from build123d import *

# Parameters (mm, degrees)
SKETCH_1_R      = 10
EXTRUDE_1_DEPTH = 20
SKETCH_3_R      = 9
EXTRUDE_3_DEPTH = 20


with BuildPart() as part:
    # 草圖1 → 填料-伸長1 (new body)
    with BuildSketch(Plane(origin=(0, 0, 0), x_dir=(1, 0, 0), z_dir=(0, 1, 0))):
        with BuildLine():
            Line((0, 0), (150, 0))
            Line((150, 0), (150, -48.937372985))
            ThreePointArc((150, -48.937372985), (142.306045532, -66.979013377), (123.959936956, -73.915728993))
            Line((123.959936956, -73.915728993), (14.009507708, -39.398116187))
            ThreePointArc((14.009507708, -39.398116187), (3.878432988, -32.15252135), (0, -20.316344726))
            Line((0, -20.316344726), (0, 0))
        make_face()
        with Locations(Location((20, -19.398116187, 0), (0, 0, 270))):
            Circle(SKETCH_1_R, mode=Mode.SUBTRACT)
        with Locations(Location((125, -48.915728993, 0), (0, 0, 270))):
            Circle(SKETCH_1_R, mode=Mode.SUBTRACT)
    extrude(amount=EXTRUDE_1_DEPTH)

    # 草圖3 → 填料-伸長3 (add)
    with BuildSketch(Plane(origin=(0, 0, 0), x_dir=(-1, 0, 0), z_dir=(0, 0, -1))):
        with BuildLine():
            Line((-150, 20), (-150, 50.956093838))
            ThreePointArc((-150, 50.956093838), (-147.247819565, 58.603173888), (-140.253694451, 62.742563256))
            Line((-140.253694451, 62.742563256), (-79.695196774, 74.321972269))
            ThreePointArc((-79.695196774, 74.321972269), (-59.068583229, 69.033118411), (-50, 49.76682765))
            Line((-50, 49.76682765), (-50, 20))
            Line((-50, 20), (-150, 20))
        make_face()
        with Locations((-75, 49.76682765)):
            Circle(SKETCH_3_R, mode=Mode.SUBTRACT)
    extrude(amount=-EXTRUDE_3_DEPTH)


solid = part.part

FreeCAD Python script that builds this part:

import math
import FreeCAD as App
import Part
import Sketcher

V = App.Vector

doc = App.newDocument("Part")
params = doc.addObject("Spreadsheet::Sheet", "Params")
for row, (alias, value) in enumerate([
    ("sketch1_diameter", "20 mm"),
    ("sketch1_radius", "20 mm"),
    ("sketch1_radius2", "25 mm"),
    ("sketch1_width", "150 mm"),
    ("pad1_length", "20 mm"),
    ("sketch2_diameter", "18 mm"),
    ("sketch2_radius", "25 mm"),
    ("sketch2_radius2", "12 mm"),
    ("sketch2_width", "100 mm"),
    ("pad2_length", "20 mm"),
], start=1):
    params.set(f"A{row}", alias)
    params.set(f"B{row}", "=" + value)
    params.setAlias(f"B{row}", alias)

body = doc.addObject("PartDesign::Body", "Body")

# Sketch on XZ plane
sketch1 = body.newObject("Sketcher::SketchObject", "Sketch")
sketch1.AttachmentSupport = (doc.getObject("XZ_Plane"), [""])
sketch1.MapMode = "FlatFace"
sketch1.addGeometry(Part.LineSegment(V(150, 0, 0), V(0, 0, 0)), False)
sketch1.addGeometry(Part.LineSegment(V(0, 0, 0), V(0, 20, 0)), False)
sketch1.addGeometry(Part.ArcOfCircle(Part.Circle(V(20, 20, 0), V(0, 0, 1), 20), math.radians(107), math.radians(180)), False)
sketch1.addGeometry(Part.LineSegment(V(14, 39, 0), V(124, 74, 0)), False)
sketch1.addGeometry(Part.ArcOfCircle(Part.Circle(V(125, 49, 0), V(0, 0, 1), 25), math.radians(0), math.radians(92)), False)
sketch1.addGeometry(Part.LineSegment(V(150, 49, 0), V(150, 0, 0)), False)
sketch1.addGeometry(Part.Circle(V(125, 49, 0), V(0, 0, 1), 10), False)
sketch1.addGeometry(Part.Circle(V(20, 19, 0), V(0, 0, 1), 10), False)
sketch1.addConstraint(Sketcher.Constraint("Coincident", 0, 2, 1, 1))
sketch1.addConstraint(Sketcher.Constraint("Tangent", 1, 2, 2, 2))
sketch1.addConstraint(Sketcher.Constraint("Tangent", 2, 1, 3, 1))
sketch1.addConstraint(Sketcher.Constraint("Coincident", 3, 2, 4, 2))
sketch1.addConstraint(Sketcher.Constraint("Tangent", 4, 1, 5, 1))
sketch1.addConstraint(Sketcher.Constraint("Coincident", 5, 2, 0, 1))
sketch1.addConstraint(Sketcher.Constraint("Horizontal", 0))
sketch1.addConstraint(Sketcher.Constraint("Vertical", 1))
sketch1.addConstraint(Sketcher.Constraint("Vertical", 5))
sketch1.addConstraint(Sketcher.Constraint("Coincident", 0, 2, -1, 1))
sketch1.addConstraint(Sketcher.Constraint("Equal", 6, 7))
sketch1.addConstraint(Sketcher.Constraint("Vertical", 4, 3, 6, 3))
sketch1.addConstraint(Sketcher.Constraint("Vertical", 2, 3, 7, 3))
sketch1.addConstraint(Sketcher.Constraint("Diameter", 6, 20.0))
sketch1.addConstraint(Sketcher.Constraint("Radius", 2, 20.0))
sketch1.addConstraint(Sketcher.Constraint("Radius", 4, 25.0))
sketch1.addConstraint(Sketcher.Constraint("DistanceX", 0, 2, 0, 1, 150.0))
sketch1.addConstraint(Sketcher.Constraint("DistanceY", 7, 3, 2, 1, 20.0))
sketch1.addConstraint(Sketcher.Constraint("DistanceY", 6, 3, 3, 2, 25.0))
sketch1.addConstraint(Sketcher.Constraint("DistanceY", 1, 1, 1, 2, 20.316345))
sketch1.addConstraint(Sketcher.Constraint("DistanceY", 5, 2, 5, 1, 48.937373))
sketch1.addConstraint(Sketcher.Constraint("DistanceY", -1, 1, 6, 3, 48.915729))
sketch1.setExpression("Constraints[13]", "Params.sketch1_diameter")
sketch1.setExpression("Constraints[14]", "Params.sketch1_radius")
sketch1.setExpression("Constraints[15]", "Params.sketch1_radius2")
sketch1.setExpression("Constraints[16]", "Params.sketch1_width")
pad1 = body.newObject("PartDesign::Pad", "Pad")
pad1.Profile = sketch1
pad1.setExpression("Length", "Params.pad1_length")
pad1.Reversed = True

# Sketch on XY plane
sketch2 = body.newObject("Sketcher::SketchObject", "Sketch001")
sketch2.AttachmentSupport = (doc.getObject("XY_Plane"), [""])
sketch2.MapMode = "FlatFace"
sketch2.addGeometry(Part.LineSegment(V(150, 51, 0), V(150, 20, 0)), False)
sketch2.addGeometry(Part.LineSegment(V(150, 20, 0), V(50, 20, 0)), False)
sketch2.addGeometry(Part.LineSegment(V(50, 20, 0), V(50, 50, 0)), False)
sketch2.addGeometry(Part.ArcOfCircle(Part.Circle(V(75, 50, 0), V(0, 0, 1), 25), math.radians(79), math.radians(180)), False)
sketch2.addGeometry(Part.LineSegment(V(80, 74, 0), V(140, 63, 0)), False)
sketch2.addGeometry(Part.ArcOfCircle(Part.Circle(V(138, 51, 0), V(0, 0, 1), 12), math.radians(0), math.radians(79)), False)
sketch2.addGeometry(Part.Circle(V(75, 50, 0), V(0, 0, 1), 9), False)
sketch2.addConstraint(Sketcher.Constraint("Coincident", 0, 2, 1, 1))
sketch2.addConstraint(Sketcher.Constraint("Coincident", 1, 2, 2, 1))
sketch2.addConstraint(Sketcher.Constraint("Tangent", 2, 2, 3, 2))
sketch2.addConstraint(Sketcher.Constraint("Tangent", 3, 1, 4, 1))
sketch2.addConstraint(Sketcher.Constraint("Tangent", 4, 2, 5, 2))
sketch2.addConstraint(Sketcher.Constraint("Tangent", 5, 1, 0, 1))
sketch2.addConstraint(Sketcher.Constraint("Vertical", 0))
sketch2.addConstraint(Sketcher.Constraint("Horizontal", 1))
sketch2.addConstraint(Sketcher.Constraint("Vertical", 2))
sketch2.addConstraint(Sketcher.Constraint("Coincident", 6, 3, 3, 3))
sketch2.addConstraint(Sketcher.Constraint("Diameter", 6, 18.0))
sketch2.addConstraint(Sketcher.Constraint("Radius", 3, 25.0))
sketch2.addConstraint(Sketcher.Constraint("Radius", 5, 12.0))
sketch2.addConstraint(Sketcher.Constraint("DistanceX", 1, 2, 1, 1, 100.0))
sketch2.addConstraint(Sketcher.Constraint("DistanceX", -1, 1, 3, 3, 75.0))
sketch2.addConstraint(Sketcher.Constraint("DistanceY", -1, 1, 0, 2, 20.0))
sketch2.addConstraint(Sketcher.Constraint("Distance", 4, 61.655611))
sketch2.addConstraint(Sketcher.Constraint("DistanceY", 0, 2, 0, 1, 30.956094))
sketch2.setExpression("Constraints[10]", "Params.sketch2_diameter")
sketch2.setExpression("Constraints[11]", "Params.sketch2_radius")
sketch2.setExpression("Constraints[12]", "Params.sketch2_radius2")
sketch2.setExpression("Constraints[13]", "Params.sketch2_width")
pad2 = body.newObject("PartDesign::Pad", "Pad001")
pad2.Profile = sketch2
pad2.setExpression("Length", "Params.pad2_length")

doc.recompute()
